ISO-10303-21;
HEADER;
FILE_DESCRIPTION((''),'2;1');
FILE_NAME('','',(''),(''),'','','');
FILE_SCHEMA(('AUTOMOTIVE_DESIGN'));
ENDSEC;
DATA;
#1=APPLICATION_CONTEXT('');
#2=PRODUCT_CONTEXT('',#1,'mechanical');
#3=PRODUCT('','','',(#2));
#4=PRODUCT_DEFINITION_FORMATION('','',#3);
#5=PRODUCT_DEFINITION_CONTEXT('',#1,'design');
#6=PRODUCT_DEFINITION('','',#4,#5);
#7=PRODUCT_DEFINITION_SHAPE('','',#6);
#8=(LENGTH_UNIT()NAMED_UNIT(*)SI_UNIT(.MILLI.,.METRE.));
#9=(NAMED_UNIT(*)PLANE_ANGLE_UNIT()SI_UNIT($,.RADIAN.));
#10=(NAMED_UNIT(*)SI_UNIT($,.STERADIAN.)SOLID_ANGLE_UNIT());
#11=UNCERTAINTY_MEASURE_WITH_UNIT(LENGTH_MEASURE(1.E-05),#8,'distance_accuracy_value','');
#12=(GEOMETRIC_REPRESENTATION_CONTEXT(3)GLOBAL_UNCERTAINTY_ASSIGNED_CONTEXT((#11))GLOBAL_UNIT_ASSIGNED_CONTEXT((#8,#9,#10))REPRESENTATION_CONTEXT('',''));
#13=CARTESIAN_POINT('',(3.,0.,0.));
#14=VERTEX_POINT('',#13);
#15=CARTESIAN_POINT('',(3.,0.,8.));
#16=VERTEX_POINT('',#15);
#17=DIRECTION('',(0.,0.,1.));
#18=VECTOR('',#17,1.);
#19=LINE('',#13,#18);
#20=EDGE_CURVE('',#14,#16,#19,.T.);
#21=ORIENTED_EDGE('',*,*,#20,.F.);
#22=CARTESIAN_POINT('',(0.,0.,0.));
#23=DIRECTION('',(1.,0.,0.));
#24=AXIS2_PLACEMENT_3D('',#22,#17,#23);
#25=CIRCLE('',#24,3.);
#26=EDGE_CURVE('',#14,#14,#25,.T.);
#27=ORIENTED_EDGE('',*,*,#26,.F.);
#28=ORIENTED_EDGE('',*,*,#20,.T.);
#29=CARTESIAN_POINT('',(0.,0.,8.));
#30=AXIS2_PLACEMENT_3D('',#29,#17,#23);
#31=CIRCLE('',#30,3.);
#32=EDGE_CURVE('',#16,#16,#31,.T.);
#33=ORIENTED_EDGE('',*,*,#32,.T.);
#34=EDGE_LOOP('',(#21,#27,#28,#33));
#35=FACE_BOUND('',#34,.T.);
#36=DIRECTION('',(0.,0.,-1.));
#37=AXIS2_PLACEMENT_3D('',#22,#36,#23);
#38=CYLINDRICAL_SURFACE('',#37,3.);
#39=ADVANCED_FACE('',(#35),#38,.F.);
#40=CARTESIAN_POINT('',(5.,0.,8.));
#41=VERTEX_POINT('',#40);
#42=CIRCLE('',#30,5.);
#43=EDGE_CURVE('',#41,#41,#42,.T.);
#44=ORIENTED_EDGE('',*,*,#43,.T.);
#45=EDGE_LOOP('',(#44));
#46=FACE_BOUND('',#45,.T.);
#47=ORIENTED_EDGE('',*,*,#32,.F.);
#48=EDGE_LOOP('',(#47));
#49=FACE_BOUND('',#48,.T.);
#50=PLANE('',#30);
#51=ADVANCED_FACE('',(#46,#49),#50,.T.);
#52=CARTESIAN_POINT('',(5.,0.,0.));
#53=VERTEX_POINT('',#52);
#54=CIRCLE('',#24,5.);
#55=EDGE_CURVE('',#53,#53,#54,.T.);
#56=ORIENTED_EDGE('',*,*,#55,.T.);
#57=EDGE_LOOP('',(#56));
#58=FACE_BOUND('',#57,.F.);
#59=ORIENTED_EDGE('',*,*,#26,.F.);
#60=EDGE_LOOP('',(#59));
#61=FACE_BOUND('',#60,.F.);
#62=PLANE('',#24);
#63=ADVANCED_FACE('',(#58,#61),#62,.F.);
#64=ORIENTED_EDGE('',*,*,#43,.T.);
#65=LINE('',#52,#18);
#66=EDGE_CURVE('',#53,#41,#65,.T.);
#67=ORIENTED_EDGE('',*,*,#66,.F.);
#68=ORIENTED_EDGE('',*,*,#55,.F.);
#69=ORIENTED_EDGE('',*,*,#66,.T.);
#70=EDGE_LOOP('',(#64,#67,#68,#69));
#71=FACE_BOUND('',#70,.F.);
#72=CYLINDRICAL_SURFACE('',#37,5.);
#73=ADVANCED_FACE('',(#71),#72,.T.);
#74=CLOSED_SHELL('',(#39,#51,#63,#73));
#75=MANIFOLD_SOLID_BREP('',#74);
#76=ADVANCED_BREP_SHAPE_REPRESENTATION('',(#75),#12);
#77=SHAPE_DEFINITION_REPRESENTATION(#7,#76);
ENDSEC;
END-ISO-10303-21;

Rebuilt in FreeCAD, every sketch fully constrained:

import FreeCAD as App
import Part
import Sketcher
from FreeCAD import Vector
Q = App.Units.Quantity

doc = App.newDocument("Part")
body = doc.addObject("PartDesign::Body", "Body")

sketch1 = body.newObject("Sketcher::SketchObject", "Sketch")
sketch1.AttachmentSupport = (doc.getObject("XY_Plane"), [""])
sketch1.MapMode = "FlatFace"
sketch1.addGeometry(Part.Circle(Vector(0, 0, 0), Vector(0, 0, 1), 5), False)
sketch1.addGeometry(Part.Circle(Vector(0, 0, 0), Vector(0, 0, 1), 3), False)
sketch1.addConstraint(Sketcher.Constraint("Coincident", 0, 3, -1, 1))
sketch1.addConstraint(Sketcher.Constraint("Coincident", 1, 3, -1, 1))
sketch1.addConstraint(Sketcher.Constraint("Diameter", 0, Q("10 mm")))
sketch1.addConstraint(Sketcher.Constraint("Diameter", 1, Q("6 mm")))
pad1 = body.newObject("PartDesign::Pad", "Pad")
pad1.Profile = sketch1
pad1.Length = 8

doc.recompute()
